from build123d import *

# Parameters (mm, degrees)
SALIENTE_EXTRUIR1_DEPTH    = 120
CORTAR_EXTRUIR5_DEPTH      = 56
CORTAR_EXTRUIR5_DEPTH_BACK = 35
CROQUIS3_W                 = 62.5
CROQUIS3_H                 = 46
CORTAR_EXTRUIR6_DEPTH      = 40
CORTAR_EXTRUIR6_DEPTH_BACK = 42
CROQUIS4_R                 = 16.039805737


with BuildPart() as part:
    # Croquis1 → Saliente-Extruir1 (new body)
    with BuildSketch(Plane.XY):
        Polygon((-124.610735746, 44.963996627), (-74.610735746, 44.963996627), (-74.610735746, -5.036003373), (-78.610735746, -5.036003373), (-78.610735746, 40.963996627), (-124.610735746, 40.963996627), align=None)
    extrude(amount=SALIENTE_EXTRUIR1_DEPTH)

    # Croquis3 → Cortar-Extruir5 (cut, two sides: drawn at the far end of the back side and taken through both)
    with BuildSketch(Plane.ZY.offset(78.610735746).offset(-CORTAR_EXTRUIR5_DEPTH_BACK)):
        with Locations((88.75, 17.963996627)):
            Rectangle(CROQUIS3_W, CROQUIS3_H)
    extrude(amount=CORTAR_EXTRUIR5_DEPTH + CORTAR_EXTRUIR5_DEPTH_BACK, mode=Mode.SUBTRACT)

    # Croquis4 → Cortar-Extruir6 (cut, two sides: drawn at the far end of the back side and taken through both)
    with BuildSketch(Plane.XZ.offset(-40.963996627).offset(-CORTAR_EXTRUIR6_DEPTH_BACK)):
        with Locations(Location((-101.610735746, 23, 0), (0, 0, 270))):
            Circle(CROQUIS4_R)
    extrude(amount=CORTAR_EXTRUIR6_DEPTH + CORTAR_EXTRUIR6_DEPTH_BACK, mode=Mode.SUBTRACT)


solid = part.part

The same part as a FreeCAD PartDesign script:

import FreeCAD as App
import Part
import Sketcher
from FreeCAD import Vector
Q = App.Units.Quantity


def add_polygon(sketch, points):
    """Adds a closed chain of lines whose ends are joined by coincident constraints."""
    first, n = sketch.GeometryCount, len(points)
    for a, b in zip(points, points[1:] + points[:1]):
        sketch.addGeometry(Part.LineSegment(App.Vector(*a, 0), App.Vector(*b, 0)), False)
    for i in range(n):
        sketch.addConstraint(Sketcher.Constraint("Coincident", first + i, 2, first + (i + 1) % n, 1))

doc = App.newDocument("Part")
params = doc.addObject("Spreadsheet::Sheet", "Params")
for row, (alias, value) in enumerate([
    ("sketch1_width", "50 mm"),
    ("sketch1_width2", "46 mm"),
    ("pad1_length", "120 mm"),
    ("sketch2_width", "46 mm"),
    ("sketch2_height", "62.5 mm"),
], start=1):
    params.set(f"A{row}", alias)
    params.set(f"B{row}", "=" + value)
    params.setAlias(f"B{row}", alias)

body = doc.addObject("PartDesign::Body", "Body")

# Sketch on XY plane
sketch1 = body.newObject("Sketcher::SketchObject", "Sketch")
sketch1.AttachmentSupport = (doc.getObject("XY_Plane"), [""])
sketch1.MapMode = "FlatFace"
add_polygon(sketch1, [(-74.610736, 44.963997), (-124.610736, 44.963997), (-124.610736, 40.963997), (-78.610736, 40.963997), (-78.610736, -5.036003), (-74.610736, -5.036003)])  # lines 0-5
sketch1.addConstraint([
    Sketcher.Constraint("Horizontal", 0),
    Sketcher.Constraint("Vertical", 1),
    Sketcher.Constraint("Horizontal", 2),
    Sketcher.Constraint("Vertical", 3),
    Sketcher.Constraint("Horizontal", 4),
    Sketcher.Constraint("Vertical", 5),
    Sketcher.Constraint("Equal", 4, 1),
    Sketcher.Constraint("Equal", 2, 3),
    Sketcher.Constraint("DistanceX", 0, 2, 0, 1, Q("50 mm")),
    Sketcher.Constraint("DistanceX", 2, 1, 2, 2, Q("46 mm")),
    Sketcher.Constraint("DistanceX", 0, 2, -1, 1, Q("124.610736 mm")),
    Sketcher.Constraint("DistanceY", -1, 1, 0, 2, Q("44.963997 mm")),
])
sketch1.setExpression("Constraints[14]", "Params.sketch1_width")
sketch1.setExpression("Constraints[15]", "Params.sketch1_width2")
pad1 = body.newObject("PartDesign::Pad", "Pad")
pad1.Profile = sketch1
pad1.setExpression("Length", "Params.pad1_length")

# Sketch on YZ plane
sketch2 = body.newObject("Sketcher::SketchObject", "Sketch001")
sketch2.AttachmentSupport = (doc.getObject("YZ_Plane"), [""])
sketch2.MapMode = "FlatFace"
sketch2.AttachmentOffset = App.Placement(Vector(0, 0, -78.610736), App.Rotation())
add_polygon(sketch2, [(40.963997, 57.5), (-5.036003, 57.5), (-5.036003, 120), (40.963997, 120)])  # lines 0-3
sketch2.addConstraint([
    Sketcher.Constraint("Horizontal", 0),
    Sketcher.Constraint("Vertical", 1),
    Sketcher.Constraint("Horizontal", 2),
    Sketcher.Constraint("Vertical", 3),
    Sketcher.Constraint("DistanceX", 0, 2, 0, 1, Q("46 mm")),
    Sketcher.Constraint("DistanceY", 1, 1, 1, 2, Q("62.5 mm")),
    Sketcher.Constraint("DistanceY", -1, 1, 1, 2, Q("120 mm")),
    Sketcher.Constraint("DistanceX", 0, 2, -1, 1, Q("5.036003 mm")),
])
sketch2.setExpression("Constraints[8]", "Params.sketch2_width")
sketch2.setExpression("Constraints[9]", "Params.sketch2_height")
pocket1 = body.newObject("PartDesign::Pocket", "Pocket")
pocket1.Profile = sketch2
pocket1.Type = "ThroughAll"
pocket1.Midplane = True

# Sketch on XZ plane
sketch3 = body.newObject("Sketcher::SketchObject", "Sketch002")
sketch3.AttachmentSupport = (doc.getObject("XZ_Plane"), [""])
sketch3.MapMode = "FlatFace"
sketch3.AttachmentOffset = App.Placement(Vector(0, 0, -40.963997), App.Rotation())
sketch3.addGeometry(Part.Circle(Vector(-101.610736, 23, 0), Vector(0, 0, 1), 16.039806), False)
sketch3.addConstraint([
    Sketcher.Constraint("DistanceY", -1, 1, 0, 3, Q("23 mm")),
    Sketcher.Constraint("Diameter", 0, Q("32.079611 mm")),
    Sketcher.Constraint("DistanceX", 0, 3, -1, 1, Q("101.610736 mm")),
])
pocket2 = body.newObject("PartDesign::Pocket", "Pocket001")
pocket2.Profile = sketch3
pocket2.Type = "ThroughAll"
pocket2.Midplane = True

doc.recompute()
